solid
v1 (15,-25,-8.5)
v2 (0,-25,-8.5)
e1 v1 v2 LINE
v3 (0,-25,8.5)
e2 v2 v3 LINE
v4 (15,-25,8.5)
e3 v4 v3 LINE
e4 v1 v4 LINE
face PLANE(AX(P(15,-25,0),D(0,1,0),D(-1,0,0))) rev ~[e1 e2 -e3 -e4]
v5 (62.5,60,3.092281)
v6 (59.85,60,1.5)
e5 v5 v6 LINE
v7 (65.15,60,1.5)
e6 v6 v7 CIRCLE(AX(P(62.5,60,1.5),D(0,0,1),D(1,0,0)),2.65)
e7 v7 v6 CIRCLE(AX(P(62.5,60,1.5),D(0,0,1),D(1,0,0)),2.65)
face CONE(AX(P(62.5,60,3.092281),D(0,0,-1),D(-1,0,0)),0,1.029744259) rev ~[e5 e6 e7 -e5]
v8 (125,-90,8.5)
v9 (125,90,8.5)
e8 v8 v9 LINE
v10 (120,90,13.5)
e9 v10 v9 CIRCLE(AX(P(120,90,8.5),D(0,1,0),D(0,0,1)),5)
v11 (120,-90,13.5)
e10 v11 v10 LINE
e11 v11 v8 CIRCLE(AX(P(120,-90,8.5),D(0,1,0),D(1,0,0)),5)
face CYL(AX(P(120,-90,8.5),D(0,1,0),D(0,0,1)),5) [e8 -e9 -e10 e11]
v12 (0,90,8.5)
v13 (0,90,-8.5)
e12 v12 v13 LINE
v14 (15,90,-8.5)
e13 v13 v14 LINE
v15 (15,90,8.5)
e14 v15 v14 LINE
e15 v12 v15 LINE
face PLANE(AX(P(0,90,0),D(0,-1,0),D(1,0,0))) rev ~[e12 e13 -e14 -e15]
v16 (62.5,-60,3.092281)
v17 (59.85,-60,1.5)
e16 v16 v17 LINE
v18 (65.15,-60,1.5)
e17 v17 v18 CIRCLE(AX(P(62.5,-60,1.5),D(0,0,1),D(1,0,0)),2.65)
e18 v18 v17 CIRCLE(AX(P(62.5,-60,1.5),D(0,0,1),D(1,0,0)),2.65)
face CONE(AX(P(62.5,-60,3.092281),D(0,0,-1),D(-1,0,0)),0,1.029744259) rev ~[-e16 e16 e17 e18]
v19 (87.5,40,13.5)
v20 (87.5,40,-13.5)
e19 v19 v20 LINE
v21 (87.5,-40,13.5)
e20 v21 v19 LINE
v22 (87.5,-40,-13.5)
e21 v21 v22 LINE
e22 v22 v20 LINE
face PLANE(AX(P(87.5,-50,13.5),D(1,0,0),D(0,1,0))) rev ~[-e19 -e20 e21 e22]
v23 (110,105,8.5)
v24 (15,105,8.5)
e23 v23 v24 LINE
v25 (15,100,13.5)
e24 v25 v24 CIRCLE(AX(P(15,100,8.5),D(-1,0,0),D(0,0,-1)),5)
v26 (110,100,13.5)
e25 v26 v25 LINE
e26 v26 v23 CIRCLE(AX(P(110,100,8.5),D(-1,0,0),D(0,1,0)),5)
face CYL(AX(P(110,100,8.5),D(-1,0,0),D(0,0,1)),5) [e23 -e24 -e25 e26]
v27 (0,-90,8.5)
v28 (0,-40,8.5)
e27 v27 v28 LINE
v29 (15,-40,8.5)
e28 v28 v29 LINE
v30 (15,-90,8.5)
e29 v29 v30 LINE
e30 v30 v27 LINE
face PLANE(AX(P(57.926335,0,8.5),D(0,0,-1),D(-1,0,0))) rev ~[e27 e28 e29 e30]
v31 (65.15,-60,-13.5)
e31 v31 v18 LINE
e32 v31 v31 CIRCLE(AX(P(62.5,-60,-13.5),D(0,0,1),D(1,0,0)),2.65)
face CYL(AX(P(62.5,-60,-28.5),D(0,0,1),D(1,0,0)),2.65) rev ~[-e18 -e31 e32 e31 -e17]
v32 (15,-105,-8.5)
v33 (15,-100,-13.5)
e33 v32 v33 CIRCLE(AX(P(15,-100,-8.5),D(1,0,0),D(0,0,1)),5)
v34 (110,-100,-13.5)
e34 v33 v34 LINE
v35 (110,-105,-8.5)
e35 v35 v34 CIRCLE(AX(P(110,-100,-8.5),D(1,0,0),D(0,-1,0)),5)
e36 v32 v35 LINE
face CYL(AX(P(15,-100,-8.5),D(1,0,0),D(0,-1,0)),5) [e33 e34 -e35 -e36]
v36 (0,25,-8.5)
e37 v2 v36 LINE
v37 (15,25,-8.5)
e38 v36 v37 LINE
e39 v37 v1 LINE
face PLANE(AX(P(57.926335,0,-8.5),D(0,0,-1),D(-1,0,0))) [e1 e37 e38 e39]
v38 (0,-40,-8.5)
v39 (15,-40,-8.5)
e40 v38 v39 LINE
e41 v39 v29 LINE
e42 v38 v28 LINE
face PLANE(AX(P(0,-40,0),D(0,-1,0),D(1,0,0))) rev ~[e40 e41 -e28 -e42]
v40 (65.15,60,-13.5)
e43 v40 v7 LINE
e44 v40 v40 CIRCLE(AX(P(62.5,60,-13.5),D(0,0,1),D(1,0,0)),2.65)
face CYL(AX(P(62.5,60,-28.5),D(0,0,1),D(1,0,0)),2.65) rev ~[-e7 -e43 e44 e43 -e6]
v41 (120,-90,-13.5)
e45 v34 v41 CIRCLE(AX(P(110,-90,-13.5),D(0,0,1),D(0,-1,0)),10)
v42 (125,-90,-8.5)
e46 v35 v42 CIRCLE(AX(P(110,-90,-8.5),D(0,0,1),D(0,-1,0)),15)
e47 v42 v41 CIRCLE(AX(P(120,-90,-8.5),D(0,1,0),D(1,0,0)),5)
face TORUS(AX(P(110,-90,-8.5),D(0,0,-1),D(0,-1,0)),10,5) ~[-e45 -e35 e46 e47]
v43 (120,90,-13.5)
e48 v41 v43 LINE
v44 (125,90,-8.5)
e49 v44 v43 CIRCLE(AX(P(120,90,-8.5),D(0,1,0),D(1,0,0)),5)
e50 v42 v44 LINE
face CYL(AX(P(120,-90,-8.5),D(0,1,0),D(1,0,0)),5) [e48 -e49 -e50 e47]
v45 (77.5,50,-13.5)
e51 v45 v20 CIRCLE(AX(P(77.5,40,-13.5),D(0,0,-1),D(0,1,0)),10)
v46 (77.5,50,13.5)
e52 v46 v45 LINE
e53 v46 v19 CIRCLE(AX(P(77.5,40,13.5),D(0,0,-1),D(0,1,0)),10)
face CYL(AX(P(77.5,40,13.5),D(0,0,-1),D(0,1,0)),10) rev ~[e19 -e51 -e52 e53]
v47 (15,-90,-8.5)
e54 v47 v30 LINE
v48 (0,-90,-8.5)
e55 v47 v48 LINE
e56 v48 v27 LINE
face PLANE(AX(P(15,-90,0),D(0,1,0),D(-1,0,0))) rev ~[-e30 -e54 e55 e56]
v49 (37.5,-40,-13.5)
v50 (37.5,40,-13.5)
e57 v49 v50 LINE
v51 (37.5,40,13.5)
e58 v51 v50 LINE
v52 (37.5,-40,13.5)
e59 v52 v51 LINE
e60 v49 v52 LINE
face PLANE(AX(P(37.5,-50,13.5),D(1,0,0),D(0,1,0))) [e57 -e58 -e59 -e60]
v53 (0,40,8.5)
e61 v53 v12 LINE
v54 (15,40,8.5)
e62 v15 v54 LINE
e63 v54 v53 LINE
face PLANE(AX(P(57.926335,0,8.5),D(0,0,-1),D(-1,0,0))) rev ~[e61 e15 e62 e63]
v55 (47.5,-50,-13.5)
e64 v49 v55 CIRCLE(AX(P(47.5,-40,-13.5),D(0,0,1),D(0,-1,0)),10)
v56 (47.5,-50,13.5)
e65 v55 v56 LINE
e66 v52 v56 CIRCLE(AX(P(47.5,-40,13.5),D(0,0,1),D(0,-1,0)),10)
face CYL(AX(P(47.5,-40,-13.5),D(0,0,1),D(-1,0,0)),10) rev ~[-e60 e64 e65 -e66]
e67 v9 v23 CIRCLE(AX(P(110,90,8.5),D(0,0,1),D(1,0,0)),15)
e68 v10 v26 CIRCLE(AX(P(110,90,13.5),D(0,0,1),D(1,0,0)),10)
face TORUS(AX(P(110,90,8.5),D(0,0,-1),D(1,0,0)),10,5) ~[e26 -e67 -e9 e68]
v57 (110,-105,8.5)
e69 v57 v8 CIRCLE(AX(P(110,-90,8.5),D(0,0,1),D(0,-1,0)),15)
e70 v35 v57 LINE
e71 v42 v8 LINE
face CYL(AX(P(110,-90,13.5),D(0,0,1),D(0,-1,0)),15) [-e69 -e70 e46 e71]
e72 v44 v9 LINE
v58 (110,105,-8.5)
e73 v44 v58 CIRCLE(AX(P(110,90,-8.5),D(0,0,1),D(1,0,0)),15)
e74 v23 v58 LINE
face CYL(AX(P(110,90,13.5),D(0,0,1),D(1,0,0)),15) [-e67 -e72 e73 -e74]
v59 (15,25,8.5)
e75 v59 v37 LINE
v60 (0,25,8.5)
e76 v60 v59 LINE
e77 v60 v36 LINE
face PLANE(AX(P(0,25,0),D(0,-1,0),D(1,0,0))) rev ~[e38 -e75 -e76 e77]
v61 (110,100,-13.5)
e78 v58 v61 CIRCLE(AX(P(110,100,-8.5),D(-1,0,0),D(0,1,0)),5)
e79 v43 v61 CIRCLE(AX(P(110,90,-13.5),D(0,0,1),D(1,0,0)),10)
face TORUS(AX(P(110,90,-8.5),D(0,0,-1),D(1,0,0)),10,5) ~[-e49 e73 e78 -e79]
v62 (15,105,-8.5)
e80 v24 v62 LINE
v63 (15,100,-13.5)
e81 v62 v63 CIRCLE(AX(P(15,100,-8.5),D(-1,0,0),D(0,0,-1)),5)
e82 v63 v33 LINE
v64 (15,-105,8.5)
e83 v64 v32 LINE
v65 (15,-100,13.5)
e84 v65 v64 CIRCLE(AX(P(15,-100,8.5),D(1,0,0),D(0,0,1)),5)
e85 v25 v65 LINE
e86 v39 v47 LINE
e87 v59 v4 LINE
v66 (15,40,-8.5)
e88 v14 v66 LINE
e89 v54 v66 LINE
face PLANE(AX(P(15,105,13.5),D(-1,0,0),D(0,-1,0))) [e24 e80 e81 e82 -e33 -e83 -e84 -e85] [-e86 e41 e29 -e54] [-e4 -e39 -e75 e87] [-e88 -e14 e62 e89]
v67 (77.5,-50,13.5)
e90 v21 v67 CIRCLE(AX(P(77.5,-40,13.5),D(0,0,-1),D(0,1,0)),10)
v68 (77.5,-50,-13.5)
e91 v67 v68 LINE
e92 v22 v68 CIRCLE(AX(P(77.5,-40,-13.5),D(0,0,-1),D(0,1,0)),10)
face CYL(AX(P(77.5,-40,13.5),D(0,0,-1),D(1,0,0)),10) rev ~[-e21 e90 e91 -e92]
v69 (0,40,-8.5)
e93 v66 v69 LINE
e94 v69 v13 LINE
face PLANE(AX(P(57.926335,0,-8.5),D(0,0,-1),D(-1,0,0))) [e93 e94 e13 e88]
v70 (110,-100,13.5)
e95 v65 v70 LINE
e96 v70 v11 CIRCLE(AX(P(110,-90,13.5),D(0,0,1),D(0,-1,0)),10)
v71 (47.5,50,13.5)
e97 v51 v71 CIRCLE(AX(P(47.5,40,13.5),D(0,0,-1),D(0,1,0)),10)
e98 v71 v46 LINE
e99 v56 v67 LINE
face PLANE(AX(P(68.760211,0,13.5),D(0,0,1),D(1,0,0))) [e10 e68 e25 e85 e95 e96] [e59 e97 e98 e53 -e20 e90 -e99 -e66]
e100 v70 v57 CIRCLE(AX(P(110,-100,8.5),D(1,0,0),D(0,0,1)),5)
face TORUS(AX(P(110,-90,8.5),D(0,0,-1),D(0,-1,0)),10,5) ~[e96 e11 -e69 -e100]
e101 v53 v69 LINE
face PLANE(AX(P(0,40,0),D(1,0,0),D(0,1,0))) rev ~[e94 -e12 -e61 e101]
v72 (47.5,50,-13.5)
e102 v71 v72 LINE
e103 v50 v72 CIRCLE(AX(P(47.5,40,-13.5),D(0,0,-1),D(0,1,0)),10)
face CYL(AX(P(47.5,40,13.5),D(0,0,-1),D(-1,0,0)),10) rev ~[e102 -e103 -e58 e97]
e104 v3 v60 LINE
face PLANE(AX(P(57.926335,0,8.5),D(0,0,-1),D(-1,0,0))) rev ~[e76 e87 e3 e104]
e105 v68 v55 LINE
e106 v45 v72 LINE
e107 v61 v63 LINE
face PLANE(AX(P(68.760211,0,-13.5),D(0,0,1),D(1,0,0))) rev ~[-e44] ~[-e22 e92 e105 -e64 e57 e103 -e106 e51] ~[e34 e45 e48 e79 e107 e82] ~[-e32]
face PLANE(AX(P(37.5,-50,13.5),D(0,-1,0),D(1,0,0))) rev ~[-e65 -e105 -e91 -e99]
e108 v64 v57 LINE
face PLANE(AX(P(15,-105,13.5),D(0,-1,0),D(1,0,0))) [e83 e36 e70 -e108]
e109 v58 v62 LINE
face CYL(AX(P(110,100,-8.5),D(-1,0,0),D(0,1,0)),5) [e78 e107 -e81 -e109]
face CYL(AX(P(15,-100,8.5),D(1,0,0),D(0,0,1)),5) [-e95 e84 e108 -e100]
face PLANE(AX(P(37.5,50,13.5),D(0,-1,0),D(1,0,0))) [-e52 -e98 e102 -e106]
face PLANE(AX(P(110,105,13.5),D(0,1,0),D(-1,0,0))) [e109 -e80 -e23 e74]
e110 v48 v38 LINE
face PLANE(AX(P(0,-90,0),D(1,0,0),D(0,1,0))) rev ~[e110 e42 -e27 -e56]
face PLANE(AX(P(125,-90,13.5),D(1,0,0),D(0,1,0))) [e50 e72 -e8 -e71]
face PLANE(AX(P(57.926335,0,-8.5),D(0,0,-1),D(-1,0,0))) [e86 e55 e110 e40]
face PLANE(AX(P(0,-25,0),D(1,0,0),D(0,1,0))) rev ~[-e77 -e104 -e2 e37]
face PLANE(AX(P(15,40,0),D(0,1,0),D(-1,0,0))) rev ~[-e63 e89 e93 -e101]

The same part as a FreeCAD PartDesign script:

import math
import FreeCAD as App
import Part
import Sketcher
from FreeCAD import Vector
Q = App.Units.Quantity


def edges_at(feature, points):
    """Names of the edges that pass closest to the given points."""
    edges = feature.Shape.Edges
    near = lambda p: min(range(len(edges)), key=lambda i: edges[i].distToShape(Part.Vertex(*p))[0])
    return sorted({f"Edge{near(p) + 1}" for p in points})


def add_polygon(sketch, points):
    """Adds a closed chain of lines whose ends are joined by coincident constraints."""
    first, n = sketch.GeometryCount, len(points)
    for a, b in zip(points, points[1:] + points[:1]):
        sketch.addGeometry(Part.LineSegment(App.Vector(*a, 0), App.Vector(*b, 0)), False)
    for i in range(n):
        sketch.addConstraint(Sketcher.Constraint("Coincident", first + i, 2, first + (i + 1) % n, 1))

doc = App.newDocument("Part")
body = doc.addObject("PartDesign::Body", "Body")

# Sketch on XY plane
sketch1 = body.newObject("Sketcher::SketchObject", "Sketch")
sketch1.AttachmentSupport = (doc.getObject("XY_Plane"), [""])
sketch1.MapMode = "FlatFace"
sketch1.addGeometry(Part.LineSegment(Vector(0, 25, 0), Vector(0, -25, 0)), False)  # 0
sketch1.addGeometry(Part.LineSegment(Vector(0, -25, 0), Vector(15, -25, 0)), False)  # 1
sketch1.addGeometry(Part.LineSegment(Vector(15, -25, 0), Vector(15, -40, 0)), False)  # 2
sketch1.addGeometry(Part.LineSegment(Vector(15, -40, 0), Vector(0, -40, 0)), False)  # 3
sketch1.addGeometry(Part.LineSegment(Vector(0, -40, 0), Vector(0, -90, 0)), False)  # 4
sketch1.addGeometry(Part.LineSegment(Vector(0, -90, 0), Vector(15, -90, 0)), False)  # 5
sketch1.addGeometry(Part.LineSegment(Vector(15, -90, 0), Vector(15, -105, 0)), False)  # 6
sketch1.addGeometry(Part.LineSegment(Vector(15, -105, 0), Vector(110, -105, 0)), False)  # 7
sketch1.addGeometry(Part.ArcOfCircle(Part.Circle(Vector(110, -90, 0), Vector(0, 0, 1), 15), math.radians(-90), math.radians(0)), False)  # 8
sketch1.addGeometry(Part.LineSegment(Vector(125, -90, 0), Vector(125, 90, 0)), False)  # 9
sketch1.addGeometry(Part.ArcOfCircle(Part.Circle(Vector(110, 90, 0), Vector(0, 0, 1), 15), math.radians(0), math.radians(90)), False)  # 10
sketch1.addGeometry(Part.LineSegment(Vector(110, 105, 0), Vector(15, 105, 0)), False)  # 11
sketch1.addGeometry(Part.LineSegment(Vector(15, 105, 0), Vector(15, 90, 0)), False)  # 12
sketch1.addGeometry(Part.LineSegment(Vector(15, 90, 0), Vector(0, 90, 0)), False)  # 13
sketch1.addGeometry(Part.LineSegment(Vector(0, 90, 0), Vector(0, 40, 0)), False)  # 14
sketch1.addGeometry(Part.LineSegment(Vector(0, 40, 0), Vector(15, 40, 0)), False)  # 15
sketch1.addGeometry(Part.LineSegment(Vector(15, 40, 0), Vector(15, 25, 0)), False)  # 16
sketch1.addGeometry(Part.LineSegment(Vector(15, 25, 0), Vector(0, 25, 0)), False)  # 17
add_polygon(sketch1, [(38, -50), (38, 50), (88, 50), (88, -50)])  # lines 18-21
sketch1.addConstraint(Sketcher.Constraint("Coincident", 0, 2, 1, 1))
sketch1.addConstraint(Sketcher.Constraint("Coincident", 1, 2, 2, 1))
sketch1.addConstraint(Sketcher.Constraint("Coincident", 2, 2, 3, 1))
sketch1.addConstraint(Sketcher.Constraint("Coincident", 3, 2, 4, 1))
sketch1.addConstraint(Sketcher.Constraint("Coincident", 4, 2, 5, 1))
sketch1.addConstraint(Sketcher.Constraint("Coincident", 5, 2, 6, 1))
sketch1.addConstraint(Sketcher.Constraint("Coincident", 6, 2, 7, 1))
sketch1.addConstraint(Sketcher.Constraint("Tangent", 7, 2, 8, 1))
sketch1.addConstraint(Sketcher.Constraint("Tangent", 8, 2, 9, 1))
sketch1.addConstraint(Sketcher.Constraint("Tangent", 9, 2, 10, 1))
sketch1.addConstraint(Sketcher.Constraint("Tangent", 10, 2, 11, 1))
sketch1.addConstraint(Sketcher.Constraint("Coincident", 11, 2, 12, 1))
sketch1.addConstraint(Sketcher.Constraint("Coincident", 12, 2, 13, 1))
sketch1.addConstraint(Sketcher.Constraint("Coincident", 13, 2, 14, 1))
sketch1.addConstraint(Sketcher.Constraint("Coincident", 14, 2, 15, 1))
sketch1.addConstraint(Sketcher.Constraint("Coincident", 15, 2, 16, 1))
sketch1.addConstraint(Sketcher.Constraint("Coincident", 16, 2, 17, 1))
sketch1.addConstraint(Sketcher.Constraint("Coincident", 17, 2, 0, 1))
sketch1.addConstraint(Sketcher.Constraint("Vertical", 0))
sketch1.addConstraint(Sketcher.Constraint("Horizontal", 1))
sketch1.addConstraint(Sketcher.Constraint("Vertical", 2))
sketch1.addConstraint(Sketcher.Constraint("Horizontal", 3))
sketch1.addConstraint(Sketcher.Constraint("Vertical", 4))
sketch1.addConstraint(Sketcher.Constraint("Horizontal", 5))
sketch1.addConstraint(Sketcher.Constraint("Vertical", 6))
sketch1.addConstraint(Sketcher.Constraint("Horizontal", 7))
sketch1.addConstraint(Sketcher.Constraint("Vertical", 9))
sketch1.addConstraint(Sketcher.Constraint("Horizontal", 11))
sketch1.addConstraint(Sketcher.Constraint("Vertical", 12))
sketch1.addConstraint(Sketcher.Constraint("Horizontal", 13))
sketch1.addConstraint(Sketcher.Constraint("Vertical", 14))
sketch1.addConstraint(Sketcher.Constraint("Horizontal", 15))
sketch1.addConstraint(Sketcher.Constraint("Vertical", 16))
sketch1.addConstraint(Sketcher.Constraint("Horizontal", 17))
sketch1.addConstraint(Sketcher.Constraint("Vertical", 18))
sketch1.addConstraint(Sketcher.Constraint("Horizontal", 19))
sketch1.addConstraint(Sketcher.Constraint("Vertical", 20))
sketch1.addConstraint(Sketcher.Constraint("Horizontal", 21))
sketch1.addConstraint(Sketcher.Constraint("Equal", 8, 10))
sketch1.addConstraint(Sketcher.Constraint("Symmetric", 4, 2, 13, 2, -1, 1))
sketch1.addConstraint(Sketcher.Constraint("Symmetric", 0, 2, 17, 2, -1, 1))
sketch1.addConstraint(Sketcher.Constraint("Symmetric", 6, 2, 11, 2, -1))
sketch1.addConstraint(Sketcher.Constraint("Symmetric", 3, 2, 14, 2, -1))
sketch1.addConstraint(Sketcher.Constraint("Horizontal", 8, 3, 4, 2))
sketch1.addConstraint(Sketcher.Constraint("Vertical", 2, 2, 5, 2))
sketch1.addConstraint(Sketcher.Constraint("Vertical", 12, 2, 15, 2))
sketch1.addConstraint(Sketcher.Constraint("Equal", 21, 0))
sketch1.addConstraint(Sketcher.Constraint("Equal", 17, 2))
sketch1.addConstraint(Sketcher.Constraint("Equal", 0, 4))
sketch1.addConstraint(Sketcher.Constraint("Equal", 2, 6))
sketch1.addConstraint(Sketcher.Constraint("Radius", 8, Q("15 mm")))
sketch1.addConstraint(Sketcher.Constraint("DistanceX", 7, 1, 7, 2, Q("95 mm")))
sketch1.addConstraint(Sketcher.Constraint("DistanceX", 19, 1, 19, 2, Q("50 mm")))
sketch1.addConstraint(Sketcher.Constraint("DistanceY", 18, 1, 18, 2, Q("100 mm")))
sketch1.addConstraint(Sketcher.Constraint("DistanceY", -1, 1, 18, 2, Q("50 mm")))
sketch1.addConstraint(Sketcher.Constraint("DistanceX", -1, 1, 18, 2, Q("37.5 mm")))
pad1 = body.newObject("PartDesign::Pad", "Pad")
pad1.Profile = sketch1
pad1.Length = 17
pad1.Midplane = True

# Sketch on XY plane
sketch2 = body.newObject("Sketcher::SketchObject", "Sketch001")
sketch2.AttachmentSupport = (doc.getObject("XY_Plane"), [""])
sketch2.MapMode = "FlatFace"
sketch2.AttachmentOffset = App.Placement(Vector(0, 0, -8.5), App.Rotation())
sketch2.addGeometry(Part.LineSegment(Vector(15, 105, 0), Vector(110, 105, 0)), False)  # 0
sketch2.addGeometry(Part.ArcOfCircle(Part.Circle(Vector(110, 90, 0), Vector(0, 0, 1), 15), math.radians(0), math.radians(90)), False)  # 1
sketch2.addGeometry(Part.LineSegment(Vector(125, 90, 0), Vector(125, -90, 0)), False)  # 2
sketch2.addGeometry(Part.ArcOfCircle(Part.Circle(Vector(110, -90, 0), Vector(0, 0, 1), 15), math.radians(-90), math.radians(0)), False)  # 3
sketch2.addGeometry(Part.LineSegment(Vector(110, -105, 0), Vector(15, -105, 0)), False)  # 4
sketch2.addGeometry(Part.LineSegment(Vector(15, -105, 0), Vector(15, 105, 0)), False)  # 5
add_polygon(sketch2, [(88, -50), (88, 50), (38, 50), (38, -50)])  # lines 6-9
sketch2.addConstraint(Sketcher.Constraint("Tangent", 0, 2, 1, 2))
sketch2.addConstraint(Sketcher.Constraint("Tangent", 1, 1, 2, 1))
sketch2.addConstraint(Sketcher.Constraint("Tangent", 2, 2, 3, 2))
sketch2.addConstraint(Sketcher.Constraint("Tangent", 3, 1, 4, 1))
sketch2.addConstraint(Sketcher.Constraint("Coincident", 4, 2, 5, 1))
sketch2.addConstraint(Sketcher.Constraint("Coincident", 5, 2, 0, 1))
sketch2.addConstraint(Sketcher.Constraint("Horizontal", 0))
sketch2.addConstraint(Sketcher.Constraint("Vertical", 2))
sketch2.addConstraint(Sketcher.Constraint("Horizontal", 4))
sketch2.addConstraint(Sketcher.Constraint("Vertical", 5))
sketch2.addConstraint(Sketcher.Constraint("Vertical", 6))
sketch2.addConstraint(Sketcher.Constraint("Horizontal", 7))
sketch2.addConstraint(Sketcher.Constraint("Vertical", 8))
sketch2.addConstraint(Sketcher.Constraint("Horizontal", 9))
sketch2.addConstraint(Sketcher.Constraint("Equal", 1, 3))
sketch2.addConstraint(Sketcher.Constraint("Radius", 1, Q("15 mm")))
sketch2.addConstraint(Sketcher.Constraint("DistanceX", 0, 1, 0, 2, Q("95 mm")))
sketch2.addConstraint(Sketcher.Constraint("DistanceX", 7, 2, 7, 1, Q("50 mm")))
sketch2.addConstraint(Sketcher.Constraint("DistanceY", 2, 2, 2, 1, Q("180 mm")))
sketch2.addConstraint(Sketcher.Constraint("DistanceY", 6, 1, 6, 2, Q("100 mm")))
sketch2.addConstraint(Sketcher.Constraint("DistanceX", -1, 1, 1, 3, Q("110 mm")))
sketch2.addConstraint(Sketcher.Constraint("DistanceY", -1, 1, 1, 3, Q("90 mm")))
sketch2.addConstraint(Sketcher.Constraint("DistanceY", -1, 1, 6, 2, Q("50 mm")))
sketch2.addConstraint(Sketcher.Constraint("DistanceX", -1, 1, 6, 2, Q("87.5 mm")))
pad2 = body.newObject("PartDesign::Pad", "Pad001")
pad2.Profile = sketch2
pad2.Length = 5
pad2.Reversed = True

# Sketch on XY plane
sketch3 = body.newObject("Sketcher::SketchObject", "Sketch002")
sketch3.AttachmentSupport = (doc.getObject("XY_Plane"), [""])
sketch3.MapMode = "FlatFace"
sketch3.AttachmentOffset = App.Placement(Vector(0, 0, 13.5), App.Rotation())
sketch3.addGeometry(Part.LineSegment(Vector(15, -105, 0), Vector(110, -105, 0)), False)  # 0
sketch3.addGeometry(Part.ArcOfCircle(Part.Circle(Vector(110, -90, 0), Vector(0, 0, 1), 15), math.radians(-90), math.radians(0)), False)  # 1
sketch3.addGeometry(Part.LineSegment(Vector(125, -90, 0), Vector(125, 90, 0)), False)  # 2
sketch3.addGeometry(Part.ArcOfCircle(Part.Circle(Vector(110, 90, 0), Vector(0, 0, 1), 15), math.radians(0), math.radians(90)), False)  # 3
sketch3.addGeometry(Part.LineSegment(Vector(110, 105, 0), Vector(15, 105, 0)), False)  # 4
sketch3.addGeometry(Part.LineSegment(Vector(15, 105, 0), Vector(15, -105, 0)), False)  # 5
add_polygon(sketch3, [(88, -50), (38, -50), (38, 50), (88, 50)])  # lines 6-9
sketch3.addConstraint(Sketcher.Constraint("Tangent", 0, 2, 1, 1))
sketch3.addConstraint(Sketcher.Constraint("Tangent", 1, 2, 2, 1))
sketch3.addConstraint(Sketcher.Constraint("Tangent", 2, 2, 3, 1))
sketch3.addConstraint(Sketcher.Constraint("Tangent", 3, 2, 4, 1))
sketch3.addConstraint(Sketcher.Constraint("Coincident", 4, 2, 5, 1))
sketch3.addConstraint(Sketcher.Constraint("Coincident", 5, 2, 0, 1))
sketch3.addConstraint(Sketcher.Constraint("Horizontal", 0))
sketch3.addConstraint(Sketcher.Constraint("Vertical", 2))
sketch3.addConstraint(Sketcher.Constraint("Horizontal", 4))
sketch3.addConstraint(Sketcher.Constraint("Vertical", 5))
sketch3.addConstraint(Sketcher.Constraint("Horizontal", 6))
sketch3.addConstraint(Sketcher.Constraint("Vertical", 7))
sketch3.addConstraint(Sketcher.Constraint("Horizontal", 8))
sketch3.addConstraint(Sketcher.Constraint("Vertical", 9))
sketch3.addConstraint(Sketcher.Constraint("Equal", 1, 3))
sketch3.addConstraint(Sketcher.Constraint("Radius", 1, Q("15 mm")))
sketch3.addConstraint(Sketcher.Constraint("DistanceX", 0, 1, 0, 2, Q("95 mm")))
sketch3.addConstraint(Sketcher.Constraint("DistanceX", 6, 2, 6, 1, Q("50 mm")))
sketch3.addConstraint(Sketcher.Constraint("DistanceY", 2, 1, 2, 2, Q("180 mm")))
sketch3.addConstraint(Sketcher.Constraint("DistanceY", 7, 1, 7, 2, Q("100 mm")))
sketch3.addConstraint(Sketcher.Constraint("DistanceX", -1, 1, 1, 3, Q("110 mm")))
sketch3.addConstraint(Sketcher.Constraint("DistanceY", 1, 3, -1, 1, Q("90 mm")))
sketch3.addConstraint(Sketcher.Constraint("DistanceY", 6, 2, -1, 1, Q("50 mm")))
sketch3.addConstraint(Sketcher.Constraint("DistanceX", -1, 1, 6, 2, Q("37.5 mm")))
pad3 = body.newObject("PartDesign::Pad", "Pad002")
pad3.Profile = sketch3
pad3.Length = 5
pad3.Reversed = True
doc.recompute()

fillet = body.newObject("PartDesign::Fillet", "Fillet")
fillet.Base = (pad3, edges_at(pad3, [
    (37.5, 50, 0),
    (37.5, -50, 0),
    (87.5, -50, 0),
    (87.5, 50, 0),
]))
fillet.Radius = 10

# Sketch on XY plane
sketch4 = body.newObject("Sketcher::SketchObject", "Sketch003")
sketch4.AttachmentSupport = (doc.getObject("XY_Plane"), [""])
sketch4.MapMode = "FlatFace"
sketch4.AttachmentOffset = App.Placement(Vector(0, 0, -13.5), App.Rotation())
sketch4.addGeometry(Part.Circle(Vector(62.5, 60, 0), Vector(0, 0, 1), 2.6), False)
sketch4.addGeometry(Part.Circle(Vector(62.5, -60, 0), Vector(0, 0, 1), 2.6), False)
sketch4.addConstraint(Sketcher.Constraint("Equal", 0, 1))
sketch4.addConstraint(Sketcher.Constraint("Symmetric", 0, 3, 1, 3, -1))
sketch4.addConstraint(Sketcher.Constraint("Diameter", 0, Q("5.3 mm")))
sketch4.addConstraint(Sketcher.Constraint("DistanceY", -1, 1, 0, 3, Q("60 mm")))
sketch4.addConstraint(Sketcher.Constraint("DistanceX", -1, 1, 0, 3, Q("62.5 mm")))
doc.recompute()
hole = body.newObject("PartDesign::Hole", "Hole")
hole.Profile = sketch4
hole.ThreadType = "None"
hole.Diameter = 5.3
hole.DepthType = "Dimension"
hole.Depth = 15
hole.DrillPoint = "Angled"
hole.DrillPointAngle = 118
hole.Reversed = True
doc.recompute()

fillet2 = body.newObject("PartDesign::Fillet", "Fillet001")
fillet2.Base = (hole, edges_at(hole, [
    (62.5, -105, 13.5),
    (120.607, -100.607, 13.5),
    (125, 0, 13.5),
    (120.607, 100.607, 13.5),
    (62.5, 105, 13.5),
    (120.607, 100.607, -13.5),
    (125, 0, -13.5),
    (120.607, -100.607, -13.5),
    (62.5, -105, -13.5),
    (62.5, 105, -13.5),
]))
fillet2.Radius = 5

doc.recompute()
